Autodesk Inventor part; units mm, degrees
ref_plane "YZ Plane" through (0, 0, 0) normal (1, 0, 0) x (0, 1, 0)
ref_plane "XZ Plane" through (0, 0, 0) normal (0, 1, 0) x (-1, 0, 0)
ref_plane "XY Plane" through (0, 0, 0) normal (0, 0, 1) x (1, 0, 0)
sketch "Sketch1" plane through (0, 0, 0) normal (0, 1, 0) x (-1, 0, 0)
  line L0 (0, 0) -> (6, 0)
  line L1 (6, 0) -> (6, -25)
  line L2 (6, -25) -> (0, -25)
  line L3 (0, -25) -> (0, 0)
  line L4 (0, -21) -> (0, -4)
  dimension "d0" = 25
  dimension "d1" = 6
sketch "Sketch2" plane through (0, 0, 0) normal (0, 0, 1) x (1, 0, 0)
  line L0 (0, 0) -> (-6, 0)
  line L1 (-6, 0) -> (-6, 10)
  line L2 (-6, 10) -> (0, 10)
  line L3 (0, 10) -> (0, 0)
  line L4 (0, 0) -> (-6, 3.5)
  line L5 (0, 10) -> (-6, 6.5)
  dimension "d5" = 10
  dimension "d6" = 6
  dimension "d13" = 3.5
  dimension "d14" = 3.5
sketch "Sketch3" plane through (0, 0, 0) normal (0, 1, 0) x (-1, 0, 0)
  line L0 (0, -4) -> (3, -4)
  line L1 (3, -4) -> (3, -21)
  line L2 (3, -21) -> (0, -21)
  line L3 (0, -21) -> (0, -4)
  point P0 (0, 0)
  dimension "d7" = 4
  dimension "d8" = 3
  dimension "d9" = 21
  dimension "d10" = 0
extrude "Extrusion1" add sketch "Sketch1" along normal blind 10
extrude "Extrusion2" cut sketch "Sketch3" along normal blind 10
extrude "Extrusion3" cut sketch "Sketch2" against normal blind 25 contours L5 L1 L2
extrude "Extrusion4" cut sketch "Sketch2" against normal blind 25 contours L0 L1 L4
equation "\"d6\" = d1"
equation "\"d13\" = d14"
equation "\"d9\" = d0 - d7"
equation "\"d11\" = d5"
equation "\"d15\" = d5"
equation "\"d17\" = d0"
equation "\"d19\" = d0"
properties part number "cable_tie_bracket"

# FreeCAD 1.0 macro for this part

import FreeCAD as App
import Part
import Sketcher

V = App.Vector


def add_polygon(sketch, points):
    """Adds a closed chain of lines whose ends are joined by coincident constraints."""
    first, n = sketch.GeometryCount, len(points)
    for a, b in zip(points, points[1:] + points[:1]):
        sketch.addGeometry(Part.LineSegment(App.Vector(*a, 0), App.Vector(*b, 0)), False)
    for i in range(n):
        sketch.addConstraint(Sketcher.Constraint("Coincident", first + i, 2, first + (i + 1) % n, 1))

doc = App.newDocument("Part")
body = doc.addObject("PartDesign::Body", "Body")

# Sketch on XZ plane
sketch1 = body.newObject("Sketcher::SketchObject", "Sketch")
sketch1.AttachmentSupport = (doc.getObject("XZ_Plane"), [""])
sketch1.MapMode = "FlatFace"
add_polygon(sketch1, [(-6, 0), (0, 0), (0, -25), (-6, -25)])  # lines 0-3
sketch1.addConstraint(Sketcher.Constraint("Horizontal", 0))
sketch1.addConstraint(Sketcher.Constraint("Vertical", 1))
sketch1.addConstraint(Sketcher.Constraint("Horizontal", 2))
sketch1.addConstraint(Sketcher.Constraint("Vertical", 3))
sketch1.addConstraint(Sketcher.Constraint("Coincident", 0, 2, -1, 1))
sketch1.addConstraint(Sketcher.Constraint("DistanceX", 0, 1, 0, 2, 6.0))
sketch1.addConstraint(Sketcher.Constraint("DistanceY", 1, 2, 1, 1, 25.0))
pad1 = body.newObject("PartDesign::Pad", "Pad")
pad1.Profile = sketch1
pad1.Length = 10
pad1.Reversed = True

# Sketch on XZ plane
sketch2 = body.newObject("Sketcher::SketchObject", "Sketch001")
sketch2.AttachmentSupport = (doc.getObject("XZ_Plane"), [""])
sketch2.MapMode = "FlatFace"
add_polygon(sketch2, [(-3, -4), (0, -4), (0, -21), (-3, -21)])  # lines 0-3
sketch2.addConstraint(Sketcher.Constraint("Horizontal", 0))
sketch2.addConstraint(Sketcher.Constraint("Vertical", 1))
sketch2.addConstraint(Sketcher.Constraint("Horizontal", 2))
sketch2.addConstraint(Sketcher.Constraint("Vertical", 3))
sketch2.addConstraint(Sketcher.Constraint("PointOnObject", 0, 2, -2))
sketch2.addConstraint(Sketcher.Constraint("DistanceX", 0, 1, 0, 2, 3.0))
sketch2.addConstraint(Sketcher.Constraint("DistanceY", 0, 2, -1, 1, 4.0))
sketch2.addConstraint(Sketcher.Constraint("DistanceY", 1, 2, -1, 1, 21.0))
pocket1 = body.newObject("PartDesign::Pocket", "Pocket")
pocket1.Profile = sketch2
pocket1.Length = 10

# Sketch on XY plane
sketch3 = body.newObject("Sketcher::SketchObject", "Sketch002")
sketch3.AttachmentSupport = (doc.getObject("XY_Plane"), [""])
sketch3.MapMode = "FlatFace"
add_polygon(sketch3, [(-6, 6.5), (0, 10), (-6, 10)])  # lines 0-2
sketch3.addConstraint(Sketcher.Constraint("Horizontal", 1))
sketch3.addConstraint(Sketcher.Constraint("Vertical", 2))
sketch3.addConstraint(Sketcher.Constraint("PointOnObject", 0, 2, -2))
sketch3.addConstraint(Sketcher.Constraint("DistanceX", 1, 2, 1, 1, 6.0))
sketch3.addConstraint(Sketcher.Constraint("DistanceY", 2, 2, 2, 1, 3.5))
sketch3.addConstraint(Sketcher.Constraint("DistanceY", -1, 1, 0, 2, 10.0))
pocket2 = body.newObject("PartDesign::Pocket", "Pocket001")
pocket2.Profile = sketch3
pocket2.Length = 25

# Sketch on XY plane
sketch4 = body.newObject("Sketcher::SketchObject", "Sketch003")
sketch4.AttachmentSupport = (doc.getObject("XY_Plane"), [""])
sketch4.MapMode = "FlatFace"
add_polygon(sketch4, [(-6, 0), (0, 0), (-6, 3.5)])  # lines 0-2
sketch4.addConstraint(Sketcher.Constraint("Horizontal", 0))
sketch4.addConstraint(Sketcher.Constraint("Vertical", 2))
sketch4.addConstraint(Sketcher.Constraint("Coincident", 0, 2, -1, 1))
sketch4.addConstraint(Sketcher.Constraint("DistanceX", 0, 1, 0, 2, 6.0))
sketch4.addConstraint(Sketcher.Constraint("DistanceY", 2, 2, 2, 1, 3.5))
pocket3 = body.newObject("PartDesign::Pocket", "Pocket002")
pocket3.Profile = sketch4
pocket3.Length = 25

doc.recompute()
